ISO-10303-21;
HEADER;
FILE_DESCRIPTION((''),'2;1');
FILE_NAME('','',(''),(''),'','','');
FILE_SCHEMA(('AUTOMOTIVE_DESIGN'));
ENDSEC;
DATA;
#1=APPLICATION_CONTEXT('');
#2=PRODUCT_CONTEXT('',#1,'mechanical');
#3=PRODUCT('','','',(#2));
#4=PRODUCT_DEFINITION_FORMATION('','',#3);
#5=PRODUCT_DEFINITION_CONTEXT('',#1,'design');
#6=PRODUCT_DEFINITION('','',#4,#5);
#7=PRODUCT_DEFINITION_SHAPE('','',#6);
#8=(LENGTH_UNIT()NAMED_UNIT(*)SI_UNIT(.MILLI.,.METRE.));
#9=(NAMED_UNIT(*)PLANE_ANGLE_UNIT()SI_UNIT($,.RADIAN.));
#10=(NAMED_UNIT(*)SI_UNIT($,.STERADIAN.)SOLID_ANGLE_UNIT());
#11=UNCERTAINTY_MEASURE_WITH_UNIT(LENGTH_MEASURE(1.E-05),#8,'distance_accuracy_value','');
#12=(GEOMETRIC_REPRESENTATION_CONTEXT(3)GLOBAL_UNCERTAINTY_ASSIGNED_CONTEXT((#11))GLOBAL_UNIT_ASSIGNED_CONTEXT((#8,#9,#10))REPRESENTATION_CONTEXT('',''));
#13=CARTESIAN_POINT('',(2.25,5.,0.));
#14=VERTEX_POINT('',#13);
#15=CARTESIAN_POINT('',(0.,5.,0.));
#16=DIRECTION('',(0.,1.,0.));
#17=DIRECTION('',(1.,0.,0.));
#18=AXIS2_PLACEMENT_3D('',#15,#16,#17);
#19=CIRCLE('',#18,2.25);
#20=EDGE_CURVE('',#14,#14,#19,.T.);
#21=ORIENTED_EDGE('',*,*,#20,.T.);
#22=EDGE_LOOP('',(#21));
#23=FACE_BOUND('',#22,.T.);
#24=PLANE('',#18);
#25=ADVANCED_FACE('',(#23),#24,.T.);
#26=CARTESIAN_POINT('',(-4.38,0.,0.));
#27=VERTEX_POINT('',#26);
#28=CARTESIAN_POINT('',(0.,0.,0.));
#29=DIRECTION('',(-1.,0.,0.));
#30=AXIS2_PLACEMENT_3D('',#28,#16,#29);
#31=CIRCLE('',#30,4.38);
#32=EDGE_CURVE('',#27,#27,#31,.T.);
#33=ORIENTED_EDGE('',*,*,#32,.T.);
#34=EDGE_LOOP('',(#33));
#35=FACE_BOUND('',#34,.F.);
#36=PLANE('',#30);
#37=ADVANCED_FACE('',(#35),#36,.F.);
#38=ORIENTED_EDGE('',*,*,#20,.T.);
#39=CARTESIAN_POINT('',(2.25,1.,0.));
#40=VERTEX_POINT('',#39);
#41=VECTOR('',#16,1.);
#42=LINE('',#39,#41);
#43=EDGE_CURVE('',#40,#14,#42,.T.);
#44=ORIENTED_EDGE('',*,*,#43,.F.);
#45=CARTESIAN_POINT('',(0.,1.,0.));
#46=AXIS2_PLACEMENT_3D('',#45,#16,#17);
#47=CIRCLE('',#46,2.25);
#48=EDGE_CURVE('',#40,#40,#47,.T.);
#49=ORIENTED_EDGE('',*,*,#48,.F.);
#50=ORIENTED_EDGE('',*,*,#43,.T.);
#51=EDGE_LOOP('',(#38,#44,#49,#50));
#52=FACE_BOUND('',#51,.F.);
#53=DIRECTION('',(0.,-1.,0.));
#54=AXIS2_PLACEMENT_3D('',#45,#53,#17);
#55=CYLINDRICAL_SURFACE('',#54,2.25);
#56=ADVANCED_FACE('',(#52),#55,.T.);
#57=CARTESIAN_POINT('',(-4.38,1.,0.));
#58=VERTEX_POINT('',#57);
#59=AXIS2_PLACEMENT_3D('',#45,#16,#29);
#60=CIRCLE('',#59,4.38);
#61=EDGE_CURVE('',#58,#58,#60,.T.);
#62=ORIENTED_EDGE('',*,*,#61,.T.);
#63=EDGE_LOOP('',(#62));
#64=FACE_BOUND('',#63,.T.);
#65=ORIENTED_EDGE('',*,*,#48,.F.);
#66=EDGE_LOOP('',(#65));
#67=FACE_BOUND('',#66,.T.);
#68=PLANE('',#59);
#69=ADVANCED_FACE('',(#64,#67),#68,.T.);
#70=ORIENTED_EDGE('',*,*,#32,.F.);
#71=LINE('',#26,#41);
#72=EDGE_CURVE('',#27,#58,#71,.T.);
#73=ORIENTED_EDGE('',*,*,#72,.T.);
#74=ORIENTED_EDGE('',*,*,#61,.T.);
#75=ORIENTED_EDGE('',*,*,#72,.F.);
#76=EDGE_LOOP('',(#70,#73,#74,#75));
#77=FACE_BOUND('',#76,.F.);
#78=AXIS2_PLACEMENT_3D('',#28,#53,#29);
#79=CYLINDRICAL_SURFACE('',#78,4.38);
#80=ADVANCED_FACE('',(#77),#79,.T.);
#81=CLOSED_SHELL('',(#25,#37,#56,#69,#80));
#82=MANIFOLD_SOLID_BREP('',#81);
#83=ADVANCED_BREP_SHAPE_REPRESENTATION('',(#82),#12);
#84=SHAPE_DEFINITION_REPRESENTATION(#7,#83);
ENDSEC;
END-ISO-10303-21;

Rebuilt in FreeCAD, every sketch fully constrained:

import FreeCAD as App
import Part
import Sketcher
from FreeCAD import Vector

doc = App.newDocument("Part")
body = doc.addObject("PartDesign::Body", "Body")

# Sketch on XZ plane
sketch1 = doc.addObject("Sketcher::SketchObject", "Sketch")
body.addObject(sketch1)
sketch1.AttachmentSupport = (doc.XZ_Plane, [""])
sketch1.MapMode = "FlatFace"
sketch1.addGeometry(Part.Circle(Vector(0, 0, 0), Vector(0, 0, 1), 4.4), False)
sketch1.addConstraint([
    Sketcher.Constraint("Coincident", 0, 3, -1, 1),
    Sketcher.Constraint("Diameter", 0, 8.76),
])
pad1 = doc.addObject("PartDesign::Pad", "Pad")
body.addObject(pad1)
pad1.Profile = sketch1
pad1.Length = 1
pad1.Reversed = True

# Sketch on XZ plane
sketch2 = doc.addObject("Sketcher::SketchObject", "Sketch001")
body.addObject(sketch2)
sketch2.AttachmentSupport = (doc.XZ_Plane, [""])
sketch2.MapMode = "FlatFace"
sketch2.AttachmentOffset = App.Placement(Vector(0, 0, -1), App.Rotation())
sketch2.addGeometry(Part.Circle(Vector(0, 0, 0), Vector(0, 0, 1), 2.2), False)
sketch2.addConstraint([
    Sketcher.Constraint("Coincident", 0, 3, -1, 1),
    Sketcher.Constraint("Diameter", 0, 4.5),
])
pad2 = doc.addObject("PartDesign::Pad", "Pad001")
body.addObject(pad2)
pad2.Profile = sketch2
pad2.Length = 4
pad2.Reversed = True

doc.recompute()
